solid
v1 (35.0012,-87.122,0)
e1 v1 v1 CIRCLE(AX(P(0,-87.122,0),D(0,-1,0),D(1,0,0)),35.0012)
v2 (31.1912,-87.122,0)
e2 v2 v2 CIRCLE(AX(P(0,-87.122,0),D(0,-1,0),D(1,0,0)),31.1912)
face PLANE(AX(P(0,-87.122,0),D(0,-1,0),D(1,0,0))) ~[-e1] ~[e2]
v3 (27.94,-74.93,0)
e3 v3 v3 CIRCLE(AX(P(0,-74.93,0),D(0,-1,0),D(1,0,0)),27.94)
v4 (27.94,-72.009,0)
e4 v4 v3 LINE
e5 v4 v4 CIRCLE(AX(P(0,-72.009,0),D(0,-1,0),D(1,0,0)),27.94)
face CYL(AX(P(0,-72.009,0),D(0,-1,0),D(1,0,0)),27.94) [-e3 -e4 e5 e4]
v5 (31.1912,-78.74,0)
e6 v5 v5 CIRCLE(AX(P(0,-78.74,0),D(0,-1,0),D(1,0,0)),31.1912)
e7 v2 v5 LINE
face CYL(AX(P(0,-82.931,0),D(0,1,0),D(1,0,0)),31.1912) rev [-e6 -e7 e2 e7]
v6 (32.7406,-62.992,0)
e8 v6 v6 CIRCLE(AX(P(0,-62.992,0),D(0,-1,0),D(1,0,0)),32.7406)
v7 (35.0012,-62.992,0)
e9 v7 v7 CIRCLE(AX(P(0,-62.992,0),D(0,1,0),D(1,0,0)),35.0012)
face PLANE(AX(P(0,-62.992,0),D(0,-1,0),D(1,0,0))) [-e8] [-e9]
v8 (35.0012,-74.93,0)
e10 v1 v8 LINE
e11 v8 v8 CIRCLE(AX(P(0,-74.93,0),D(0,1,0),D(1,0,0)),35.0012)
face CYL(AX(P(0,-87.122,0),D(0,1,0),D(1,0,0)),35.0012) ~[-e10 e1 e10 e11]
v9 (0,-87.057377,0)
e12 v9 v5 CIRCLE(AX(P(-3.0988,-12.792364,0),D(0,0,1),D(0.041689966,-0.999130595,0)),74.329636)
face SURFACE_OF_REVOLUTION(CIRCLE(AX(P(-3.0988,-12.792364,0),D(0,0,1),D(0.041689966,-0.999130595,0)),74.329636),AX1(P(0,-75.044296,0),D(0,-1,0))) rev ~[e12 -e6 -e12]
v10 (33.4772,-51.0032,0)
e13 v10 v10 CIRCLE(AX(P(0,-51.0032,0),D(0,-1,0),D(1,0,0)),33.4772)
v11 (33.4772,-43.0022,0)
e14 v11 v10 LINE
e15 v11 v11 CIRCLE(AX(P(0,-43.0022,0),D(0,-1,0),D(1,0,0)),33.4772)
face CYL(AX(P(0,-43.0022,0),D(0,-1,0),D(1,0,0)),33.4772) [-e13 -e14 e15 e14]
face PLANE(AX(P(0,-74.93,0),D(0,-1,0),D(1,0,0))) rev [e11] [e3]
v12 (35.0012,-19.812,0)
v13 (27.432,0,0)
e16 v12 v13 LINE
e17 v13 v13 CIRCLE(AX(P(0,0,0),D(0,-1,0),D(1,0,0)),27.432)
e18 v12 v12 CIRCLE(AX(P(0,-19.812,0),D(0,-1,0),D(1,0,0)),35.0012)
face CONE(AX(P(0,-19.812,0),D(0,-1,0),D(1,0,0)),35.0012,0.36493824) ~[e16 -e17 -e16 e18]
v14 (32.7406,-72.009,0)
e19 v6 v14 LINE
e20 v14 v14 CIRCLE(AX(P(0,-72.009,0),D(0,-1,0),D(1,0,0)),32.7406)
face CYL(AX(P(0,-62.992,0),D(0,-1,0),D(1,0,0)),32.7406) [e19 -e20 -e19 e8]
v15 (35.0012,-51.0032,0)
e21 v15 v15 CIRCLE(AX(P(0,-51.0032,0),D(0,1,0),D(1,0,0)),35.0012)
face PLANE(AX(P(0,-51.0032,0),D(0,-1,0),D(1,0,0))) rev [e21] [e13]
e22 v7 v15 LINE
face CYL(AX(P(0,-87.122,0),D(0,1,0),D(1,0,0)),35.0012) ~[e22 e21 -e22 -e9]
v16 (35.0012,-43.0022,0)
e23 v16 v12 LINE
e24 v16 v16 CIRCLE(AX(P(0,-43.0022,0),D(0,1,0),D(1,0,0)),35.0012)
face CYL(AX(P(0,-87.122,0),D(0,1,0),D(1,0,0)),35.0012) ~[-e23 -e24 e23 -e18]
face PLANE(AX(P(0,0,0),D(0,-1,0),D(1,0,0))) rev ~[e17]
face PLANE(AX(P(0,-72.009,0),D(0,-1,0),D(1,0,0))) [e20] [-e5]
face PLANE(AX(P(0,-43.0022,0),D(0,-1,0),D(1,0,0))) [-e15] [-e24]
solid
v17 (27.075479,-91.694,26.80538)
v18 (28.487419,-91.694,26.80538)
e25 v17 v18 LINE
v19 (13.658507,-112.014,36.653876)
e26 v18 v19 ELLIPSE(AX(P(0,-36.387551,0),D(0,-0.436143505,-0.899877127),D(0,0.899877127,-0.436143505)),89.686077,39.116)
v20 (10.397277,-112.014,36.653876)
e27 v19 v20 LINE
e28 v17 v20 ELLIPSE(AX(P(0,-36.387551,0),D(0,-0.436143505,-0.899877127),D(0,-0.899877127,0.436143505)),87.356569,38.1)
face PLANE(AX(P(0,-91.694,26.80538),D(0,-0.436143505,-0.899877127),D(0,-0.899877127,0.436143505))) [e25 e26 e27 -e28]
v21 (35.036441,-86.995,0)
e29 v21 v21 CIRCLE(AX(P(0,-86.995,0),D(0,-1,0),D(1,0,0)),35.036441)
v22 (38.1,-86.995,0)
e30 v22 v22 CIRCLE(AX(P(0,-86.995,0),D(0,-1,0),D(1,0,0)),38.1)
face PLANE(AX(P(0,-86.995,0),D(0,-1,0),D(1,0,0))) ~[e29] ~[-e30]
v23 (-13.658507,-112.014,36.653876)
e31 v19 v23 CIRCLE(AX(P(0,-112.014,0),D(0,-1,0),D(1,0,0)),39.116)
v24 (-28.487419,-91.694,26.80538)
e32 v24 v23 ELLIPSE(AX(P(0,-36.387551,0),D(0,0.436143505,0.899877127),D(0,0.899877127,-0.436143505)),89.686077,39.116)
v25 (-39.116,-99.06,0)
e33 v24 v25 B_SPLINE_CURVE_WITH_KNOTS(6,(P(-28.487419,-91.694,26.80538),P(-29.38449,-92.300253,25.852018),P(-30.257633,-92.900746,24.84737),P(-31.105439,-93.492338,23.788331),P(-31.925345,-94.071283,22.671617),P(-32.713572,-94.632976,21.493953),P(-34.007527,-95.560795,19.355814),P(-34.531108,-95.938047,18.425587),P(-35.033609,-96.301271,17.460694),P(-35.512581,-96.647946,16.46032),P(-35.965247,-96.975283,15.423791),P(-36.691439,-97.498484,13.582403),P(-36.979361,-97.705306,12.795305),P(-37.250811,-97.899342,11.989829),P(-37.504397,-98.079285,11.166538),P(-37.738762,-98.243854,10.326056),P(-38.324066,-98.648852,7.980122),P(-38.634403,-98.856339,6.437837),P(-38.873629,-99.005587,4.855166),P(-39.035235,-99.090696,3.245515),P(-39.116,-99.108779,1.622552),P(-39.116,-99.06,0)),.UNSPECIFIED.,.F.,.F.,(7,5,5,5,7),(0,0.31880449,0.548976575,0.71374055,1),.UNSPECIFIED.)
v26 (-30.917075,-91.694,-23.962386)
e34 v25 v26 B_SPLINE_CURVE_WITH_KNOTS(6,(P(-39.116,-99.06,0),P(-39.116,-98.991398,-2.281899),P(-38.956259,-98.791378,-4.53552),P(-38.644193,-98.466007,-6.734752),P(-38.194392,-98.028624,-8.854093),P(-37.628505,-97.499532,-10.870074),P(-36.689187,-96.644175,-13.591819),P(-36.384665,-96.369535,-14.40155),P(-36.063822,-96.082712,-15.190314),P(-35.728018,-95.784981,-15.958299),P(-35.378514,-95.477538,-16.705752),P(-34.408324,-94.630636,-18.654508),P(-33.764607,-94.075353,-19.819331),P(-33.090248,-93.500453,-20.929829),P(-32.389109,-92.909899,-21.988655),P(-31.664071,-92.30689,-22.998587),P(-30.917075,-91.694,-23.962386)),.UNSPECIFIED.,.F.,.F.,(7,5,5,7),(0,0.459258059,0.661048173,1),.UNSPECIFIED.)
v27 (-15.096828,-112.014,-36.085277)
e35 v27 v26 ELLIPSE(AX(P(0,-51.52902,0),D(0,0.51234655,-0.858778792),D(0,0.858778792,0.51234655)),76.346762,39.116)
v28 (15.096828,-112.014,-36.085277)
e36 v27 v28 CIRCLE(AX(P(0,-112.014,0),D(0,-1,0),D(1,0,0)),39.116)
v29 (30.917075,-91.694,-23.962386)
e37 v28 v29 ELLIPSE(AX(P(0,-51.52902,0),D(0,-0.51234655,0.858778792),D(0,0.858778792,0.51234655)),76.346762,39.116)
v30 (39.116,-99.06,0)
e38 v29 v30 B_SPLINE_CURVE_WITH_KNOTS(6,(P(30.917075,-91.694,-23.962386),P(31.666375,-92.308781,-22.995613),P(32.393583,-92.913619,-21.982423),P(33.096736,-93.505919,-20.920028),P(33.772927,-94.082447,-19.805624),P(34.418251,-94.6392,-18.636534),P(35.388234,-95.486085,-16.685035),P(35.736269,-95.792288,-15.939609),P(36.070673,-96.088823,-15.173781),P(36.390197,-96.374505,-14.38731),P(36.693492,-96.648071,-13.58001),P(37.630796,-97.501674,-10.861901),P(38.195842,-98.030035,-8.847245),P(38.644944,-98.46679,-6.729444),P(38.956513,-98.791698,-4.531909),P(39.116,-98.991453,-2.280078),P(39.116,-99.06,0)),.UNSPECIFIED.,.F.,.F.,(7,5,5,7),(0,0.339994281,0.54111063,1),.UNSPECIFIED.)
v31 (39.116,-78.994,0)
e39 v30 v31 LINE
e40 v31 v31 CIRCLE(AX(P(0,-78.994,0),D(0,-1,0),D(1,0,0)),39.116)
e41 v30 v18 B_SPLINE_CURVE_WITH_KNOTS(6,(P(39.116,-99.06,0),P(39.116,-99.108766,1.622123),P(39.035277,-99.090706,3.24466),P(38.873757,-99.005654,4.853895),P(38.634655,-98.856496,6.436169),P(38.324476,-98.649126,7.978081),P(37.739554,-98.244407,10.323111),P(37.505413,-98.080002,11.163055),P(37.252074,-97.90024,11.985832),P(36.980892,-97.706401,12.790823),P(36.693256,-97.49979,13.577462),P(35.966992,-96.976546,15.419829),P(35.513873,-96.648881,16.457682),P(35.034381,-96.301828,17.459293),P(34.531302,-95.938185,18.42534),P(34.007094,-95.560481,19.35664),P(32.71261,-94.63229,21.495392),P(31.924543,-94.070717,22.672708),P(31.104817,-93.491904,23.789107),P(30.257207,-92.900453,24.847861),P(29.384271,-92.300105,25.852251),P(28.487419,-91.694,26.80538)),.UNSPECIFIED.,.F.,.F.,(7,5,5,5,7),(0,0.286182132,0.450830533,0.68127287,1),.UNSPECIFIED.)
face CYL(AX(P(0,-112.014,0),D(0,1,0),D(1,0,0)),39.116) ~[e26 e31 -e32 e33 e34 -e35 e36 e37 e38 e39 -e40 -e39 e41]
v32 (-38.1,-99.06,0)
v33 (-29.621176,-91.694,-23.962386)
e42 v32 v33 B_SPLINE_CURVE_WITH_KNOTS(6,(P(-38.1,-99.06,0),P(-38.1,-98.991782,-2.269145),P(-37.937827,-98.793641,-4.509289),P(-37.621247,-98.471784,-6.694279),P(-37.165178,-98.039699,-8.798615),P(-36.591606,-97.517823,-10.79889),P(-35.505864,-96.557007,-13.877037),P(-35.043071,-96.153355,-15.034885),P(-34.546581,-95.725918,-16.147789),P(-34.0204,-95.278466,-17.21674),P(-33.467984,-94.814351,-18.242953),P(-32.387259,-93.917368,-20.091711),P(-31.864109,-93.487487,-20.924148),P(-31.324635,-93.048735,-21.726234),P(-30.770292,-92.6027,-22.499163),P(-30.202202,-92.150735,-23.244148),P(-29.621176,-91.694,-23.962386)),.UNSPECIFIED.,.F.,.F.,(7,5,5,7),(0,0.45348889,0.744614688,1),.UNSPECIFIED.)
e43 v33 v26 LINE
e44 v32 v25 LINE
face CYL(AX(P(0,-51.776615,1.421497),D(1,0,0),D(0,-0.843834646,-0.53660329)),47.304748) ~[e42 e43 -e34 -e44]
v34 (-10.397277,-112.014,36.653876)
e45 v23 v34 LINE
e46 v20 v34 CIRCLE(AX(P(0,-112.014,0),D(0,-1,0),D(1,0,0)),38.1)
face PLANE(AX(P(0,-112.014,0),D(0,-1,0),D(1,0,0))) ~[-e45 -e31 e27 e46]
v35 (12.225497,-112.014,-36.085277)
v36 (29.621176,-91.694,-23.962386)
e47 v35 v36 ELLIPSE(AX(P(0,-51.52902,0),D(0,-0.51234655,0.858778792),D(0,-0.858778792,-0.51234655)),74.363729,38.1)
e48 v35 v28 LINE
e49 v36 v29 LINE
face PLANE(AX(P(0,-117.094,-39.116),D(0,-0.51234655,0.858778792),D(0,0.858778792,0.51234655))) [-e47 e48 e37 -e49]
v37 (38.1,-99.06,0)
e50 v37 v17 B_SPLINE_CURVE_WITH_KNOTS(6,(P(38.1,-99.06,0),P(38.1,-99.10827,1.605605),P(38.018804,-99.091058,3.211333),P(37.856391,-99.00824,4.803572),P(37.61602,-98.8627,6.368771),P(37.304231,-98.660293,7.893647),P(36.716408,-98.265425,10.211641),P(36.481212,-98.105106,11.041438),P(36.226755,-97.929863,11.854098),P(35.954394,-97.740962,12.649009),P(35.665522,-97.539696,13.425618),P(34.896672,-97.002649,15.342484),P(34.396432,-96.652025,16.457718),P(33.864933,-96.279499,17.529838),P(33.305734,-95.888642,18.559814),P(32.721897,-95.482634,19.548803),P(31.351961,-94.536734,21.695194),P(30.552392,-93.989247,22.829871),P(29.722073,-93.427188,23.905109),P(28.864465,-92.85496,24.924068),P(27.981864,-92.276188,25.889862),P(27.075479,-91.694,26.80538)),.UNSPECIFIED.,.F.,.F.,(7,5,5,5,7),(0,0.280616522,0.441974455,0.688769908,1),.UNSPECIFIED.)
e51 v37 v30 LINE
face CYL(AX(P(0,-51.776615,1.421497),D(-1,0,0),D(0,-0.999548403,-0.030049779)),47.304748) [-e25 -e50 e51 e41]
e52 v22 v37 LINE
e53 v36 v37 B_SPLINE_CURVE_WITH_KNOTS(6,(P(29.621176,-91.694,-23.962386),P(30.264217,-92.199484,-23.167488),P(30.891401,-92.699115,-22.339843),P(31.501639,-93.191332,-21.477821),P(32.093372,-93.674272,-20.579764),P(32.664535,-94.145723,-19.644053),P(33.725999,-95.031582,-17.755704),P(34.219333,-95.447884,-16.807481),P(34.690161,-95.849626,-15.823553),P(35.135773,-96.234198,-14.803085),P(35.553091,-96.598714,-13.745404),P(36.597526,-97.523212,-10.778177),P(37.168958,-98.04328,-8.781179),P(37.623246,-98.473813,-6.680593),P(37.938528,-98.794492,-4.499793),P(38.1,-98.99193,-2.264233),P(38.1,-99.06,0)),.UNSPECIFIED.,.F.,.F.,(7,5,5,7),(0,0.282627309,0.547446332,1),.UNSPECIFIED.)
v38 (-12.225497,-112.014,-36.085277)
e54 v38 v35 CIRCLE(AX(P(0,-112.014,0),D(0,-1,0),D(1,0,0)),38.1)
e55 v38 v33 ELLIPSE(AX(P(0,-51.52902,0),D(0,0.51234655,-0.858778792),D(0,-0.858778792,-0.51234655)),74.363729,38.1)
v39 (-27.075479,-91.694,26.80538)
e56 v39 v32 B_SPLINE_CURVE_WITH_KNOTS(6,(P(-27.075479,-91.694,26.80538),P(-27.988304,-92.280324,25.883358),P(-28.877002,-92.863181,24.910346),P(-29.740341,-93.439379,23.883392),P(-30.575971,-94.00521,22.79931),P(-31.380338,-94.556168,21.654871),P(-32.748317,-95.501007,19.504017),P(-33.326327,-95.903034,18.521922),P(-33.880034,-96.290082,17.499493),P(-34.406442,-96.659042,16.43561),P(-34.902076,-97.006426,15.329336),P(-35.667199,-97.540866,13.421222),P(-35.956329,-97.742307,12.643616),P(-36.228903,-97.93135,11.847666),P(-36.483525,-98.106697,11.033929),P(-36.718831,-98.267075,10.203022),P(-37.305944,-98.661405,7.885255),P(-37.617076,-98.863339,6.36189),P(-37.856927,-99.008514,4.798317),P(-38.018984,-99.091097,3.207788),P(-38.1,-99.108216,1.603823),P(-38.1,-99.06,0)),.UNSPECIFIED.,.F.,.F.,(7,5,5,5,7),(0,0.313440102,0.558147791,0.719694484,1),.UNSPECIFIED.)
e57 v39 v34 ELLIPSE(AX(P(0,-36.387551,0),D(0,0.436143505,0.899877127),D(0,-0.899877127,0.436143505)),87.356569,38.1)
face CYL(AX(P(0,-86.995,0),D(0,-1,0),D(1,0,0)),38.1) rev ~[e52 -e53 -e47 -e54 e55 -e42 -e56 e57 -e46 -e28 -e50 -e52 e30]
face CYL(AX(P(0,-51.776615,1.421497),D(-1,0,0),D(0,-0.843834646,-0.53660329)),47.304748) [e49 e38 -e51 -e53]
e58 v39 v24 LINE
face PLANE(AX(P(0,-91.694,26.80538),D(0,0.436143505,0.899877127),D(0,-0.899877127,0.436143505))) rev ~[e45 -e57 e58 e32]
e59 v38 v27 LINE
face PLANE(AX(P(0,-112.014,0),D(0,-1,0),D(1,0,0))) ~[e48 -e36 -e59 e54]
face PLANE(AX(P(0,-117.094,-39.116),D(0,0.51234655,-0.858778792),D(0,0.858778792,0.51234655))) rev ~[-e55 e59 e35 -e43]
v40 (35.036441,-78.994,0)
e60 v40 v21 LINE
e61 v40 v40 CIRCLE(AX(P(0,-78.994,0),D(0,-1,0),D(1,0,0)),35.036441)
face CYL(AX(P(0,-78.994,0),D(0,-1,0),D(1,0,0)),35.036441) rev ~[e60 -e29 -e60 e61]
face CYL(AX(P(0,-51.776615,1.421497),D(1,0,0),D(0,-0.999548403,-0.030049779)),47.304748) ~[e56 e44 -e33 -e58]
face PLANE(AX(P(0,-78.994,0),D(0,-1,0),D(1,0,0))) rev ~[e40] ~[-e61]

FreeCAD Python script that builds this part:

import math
import FreeCAD as App
import Part
import Sketcher

V = App.Vector
Q = App.Units.Quantity


def add_polygon(sketch, points):
    """Adds a closed chain of lines whose ends are joined by coincident constraints."""
    first, n = sketch.GeometryCount, len(points)
    for a, b in zip(points, points[1:] + points[:1]):
        sketch.addGeometry(Part.LineSegment(App.Vector(*a, 0), App.Vector(*b, 0)), False)
    for i in range(n):
        sketch.addConstraint(Sketcher.Constraint("Coincident", first + i, 2, first + (i + 1) % n, 1))

doc = App.newDocument("Part")
body = doc.addObject("PartDesign::Body", "Body")

sketch1 = body.newObject("Sketcher::SketchObject", "Sketch")
sketch1.AttachmentSupport = (doc.getObject("XY_Plane"), [""])
sketch1.MapMode = "FlatFace"
sketch1.addGeometry([
    Part.LineSegment(V(27.4, 0, 0), V(0, 0, 0)),
    Part.LineSegment(V(0, 0, 0), V(0, -87.1, 0)),
    Part.ArcOfCircle(Part.Circle(V(-3.1, -12.8, 0), V(0, 0, 1), 74.3), math.radians(-88), math.radians(-63)),
    Part.LineSegment(V(31.2, -78.7, 0), V(31.2, -87.1, 0)),
    Part.LineSegment(V(31.2, -87.1, 0), V(35, -87.1, 0)),
    Part.LineSegment(V(35, -87.1, 0), V(35, -19.8, 0)),
    Part.LineSegment(V(35, -19.8, 0), V(27.4, 0, 0)),
], False)
sketch1.addConstraint([
    Sketcher.Constraint("Coincident", 0, 2, 1, 1),
    Sketcher.Constraint("Coincident", 1, 2, 2, 1),
    Sketcher.Constraint("Coincident", 2, 2, 3, 1),
    Sketcher.Constraint("Coincident", 3, 2, 4, 1),
    Sketcher.Constraint("Coincident", 4, 2, 5, 1),
    Sketcher.Constraint("Coincident", 5, 2, 6, 1),
    Sketcher.Constraint("Coincident", 6, 2, 0, 1),
    Sketcher.Constraint("Horizontal", 0),
    Sketcher.Constraint("Vertical", 1),
    Sketcher.Constraint("Vertical", 3),
    Sketcher.Constraint("Horizontal", 4),
    Sketcher.Constraint("Vertical", 5),
    Sketcher.Constraint("Coincident", 0, 2, -1, 1),
    Sketcher.Constraint("DistanceX", 0, 2, 0, 1, Q("1.08 in")),
    Sketcher.Constraint("DistanceX", 4, 1, 4, 2, Q("0.15 in")),
    Sketcher.Constraint("DistanceY", 3, 2, 3, 1, Q("0.33 in")),
    Sketcher.Constraint("DistanceY", 5, 1, 5, 2, Q("2.65 in")),
    Sketcher.Constraint("DistanceY", 2, 2, -1, 1, Q("3.1 in")),
    Sketcher.Constraint("DistanceX", 2, 3, 4, 2, Q("1.5 in")),
    Sketcher.Constraint("DistanceX", 2, 3, -1, 1, Q("0.122 in")),
    Sketcher.Constraint("Radius", 2, Q("74.329636 mm")),
])
revolution = body.newObject("PartDesign::Revolution", "Revolution")
revolution.Profile = sketch1
revolution.ReferenceAxis = (sketch1, ["V_Axis"])
revolution.Angle = 360

sketch2 = body.newObject("Sketcher::SketchObject", "Sketch001")
sketch2.AttachmentSupport = (doc.getObject("XY_Plane"), [""])
sketch2.MapMode = "FlatFace"
add_polygon(sketch2, [(32.7, -63), (32.7, -72), (27.9, -72), (27.9, -74.9), (46.8, -74.9), (46.8, -43), (33.5, -43), (33.5, -51), (35.5, -51), (35.5, -63)])
sketch2.addConstraint([
    Sketcher.Constraint("Vertical", 0),
    Sketcher.Constraint("Horizontal", 1),
    Sketcher.Constraint("Vertical", 2),
    Sketcher.Constraint("Horizontal", 3),
    Sketcher.Constraint("Vertical", 4),
    Sketcher.Constraint("Horizontal", 5),
    Sketcher.Constraint("Vertical", 6),
    Sketcher.Constraint("Horizontal", 7),
    Sketcher.Constraint("Vertical", 8),
    Sketcher.Constraint("Horizontal", 9),
    Sketcher.Constraint("DistanceX", 7, 1, 7, 2, Q("0.08 in")),
    Sketcher.Constraint("DistanceX", -1, 1, 1, 2, Q("1.1 in")),
    Sketcher.Constraint("DistanceX", 1, 2, 1, 1, Q("0.189 in")),
    Sketcher.Constraint("DistanceX", 9, 2, 9, 1, Q("0.109 in")),
    Sketcher.Constraint("DistanceY", 0, 2, 0, 1, Q("0.355 in")),
    Sketcher.Constraint("DistanceY", 2, 2, 2, 1, Q("0.115 in")),
    Sketcher.Constraint("DistanceY", 4, 1, 4, 2, Q("1.257 in")),
    Sketcher.Constraint("DistanceY", 6, 2, 6, 1, Q("0.315 in")),
    Sketcher.Constraint("DistanceY", 2, 2, -1, 1, Q("2.95 in")),
    Sketcher.Constraint("DistanceX", 3, 1, 3, 2, Q("18.811011 mm")),
])
groove = body.newObject("PartDesign::Groove", "Groove")
groove.Profile = sketch2
groove.ReferenceAxis = (sketch2, ["V_Axis"])
groove.Angle = 360
body2 = doc.addObject("PartDesign::Body", "Body001")

sketch3 = body2.newObject("Sketcher::SketchObject", "Sketch002")
sketch3.AttachmentSupport = (doc.getObject("XY_Plane001"), [""])
sketch3.MapMode = "FlatFace"
add_polygon(sketch3, [(38.1, -87), (38.1, -112), (39.1, -112), (39.1, -79), (35, -79), (35, -87)])
sketch3.addConstraint([
    Sketcher.Constraint("Vertical", 0),
    Sketcher.Constraint("Horizontal", 1),
    Sketcher.Constraint("Vertical", 2),
    Sketcher.Constraint("Horizontal", 3),
    Sketcher.Constraint("Vertical", 4),
    Sketcher.Constraint("Horizontal", 5),
    Sketcher.Constraint("DistanceY", 2, 1, 2, 2, Q("1.3 in")),
    Sketcher.Constraint("DistanceX", 1, 1, 1, 2, Q("0.04 in")),
    Sketcher.Constraint("DistanceX", -1, 1, 0, 2, Q("1.5 in")),
    Sketcher.Constraint("DistanceY", 0, 2, 0, 1, Q("0.985 in")),
    Sketcher.Constraint("DistanceY", 0, 2, -1, 1, Q("4.41 in")),
    Sketcher.Constraint("DistanceX", 3, 2, 3, 1, Q("4.079559 mm")),
])
revolution2 = body2.newObject("PartDesign::Revolution", "Revolution001")
revolution2.Profile = sketch3
revolution2.ReferenceAxis = (sketch3, ["V_Axis"])
revolution2.Angle = 360

sketch4 = body2.newObject("Sketcher::SketchObject", "Sketch003")
sketch4.AttachmentSupport = (doc.getObject("YZ_Plane001"), [""])
sketch4.MapMode = "FlatFace"
sketch4.addGeometry([
    Part.ArcOfCircle(Part.Circle(V(-52, 1, 0), V(0, 0, 1), 47), math.radians(-178), math.radians(-148)),
    Part.ArcOfCircle(Part.Circle(V(-52, 1, 0), V(0, 0, 1), 47), math.radians(148), math.radians(182)),
    Part.LineSegment(V(-92, 27, 0), V(-117, 39, 0)),
    Part.LineSegment(V(-117, 39, 0), V(-117, -39, 0)),
    Part.LineSegment(V(-117, -39, 0), V(-92, -24, 0)),
], False)
sketch4.addConstraint([
    Sketcher.Constraint("Tangent", 0, 1, 1, 2),
    Sketcher.Constraint("Coincident", 1, 1, 2, 1),
    Sketcher.Constraint("Coincident", 2, 2, 3, 1),
    Sketcher.Constraint("Coincident", 3, 2, 4, 1),
    Sketcher.Constraint("Coincident", 4, 2, 0, 2),
    Sketcher.Constraint("Vertical", 3),
    Sketcher.Constraint("Equal", 0, 1),
    Sketcher.Constraint("PointOnObject", 0, 1, -1),
    Sketcher.Constraint("Vertical", 1, 1, 4, 2),
    Sketcher.Constraint("DistanceX", 2, 2, 1, 1, Q("1 in")),
    Sketcher.Constraint("DistanceY", 3, 2, 3, 1, Q("3.08 in")),
    Sketcher.Constraint("DistanceX", 0, 1, -1, 1, Q("3.9 in")),
    Sketcher.Constraint("DistanceX", 1, 1, -1, 1, Q("3.61 in")),
    Sketcher.Constraint("DistanceY", -1, 1, 2, 2, Q("1.54 in")),
    Sketcher.Constraint("Radius", 0, Q("47.304748 mm")),
    Sketcher.Constraint("DistanceY", -1, 1, 1, 1, Q("26.80538 mm")),
])
pocket1 = body2.newObject("PartDesign::Pocket", "Pocket")
pocket1.Profile = sketch4
pocket1.Type = "ThroughAll"
pocket1.Midplane = True

doc.recompute()
